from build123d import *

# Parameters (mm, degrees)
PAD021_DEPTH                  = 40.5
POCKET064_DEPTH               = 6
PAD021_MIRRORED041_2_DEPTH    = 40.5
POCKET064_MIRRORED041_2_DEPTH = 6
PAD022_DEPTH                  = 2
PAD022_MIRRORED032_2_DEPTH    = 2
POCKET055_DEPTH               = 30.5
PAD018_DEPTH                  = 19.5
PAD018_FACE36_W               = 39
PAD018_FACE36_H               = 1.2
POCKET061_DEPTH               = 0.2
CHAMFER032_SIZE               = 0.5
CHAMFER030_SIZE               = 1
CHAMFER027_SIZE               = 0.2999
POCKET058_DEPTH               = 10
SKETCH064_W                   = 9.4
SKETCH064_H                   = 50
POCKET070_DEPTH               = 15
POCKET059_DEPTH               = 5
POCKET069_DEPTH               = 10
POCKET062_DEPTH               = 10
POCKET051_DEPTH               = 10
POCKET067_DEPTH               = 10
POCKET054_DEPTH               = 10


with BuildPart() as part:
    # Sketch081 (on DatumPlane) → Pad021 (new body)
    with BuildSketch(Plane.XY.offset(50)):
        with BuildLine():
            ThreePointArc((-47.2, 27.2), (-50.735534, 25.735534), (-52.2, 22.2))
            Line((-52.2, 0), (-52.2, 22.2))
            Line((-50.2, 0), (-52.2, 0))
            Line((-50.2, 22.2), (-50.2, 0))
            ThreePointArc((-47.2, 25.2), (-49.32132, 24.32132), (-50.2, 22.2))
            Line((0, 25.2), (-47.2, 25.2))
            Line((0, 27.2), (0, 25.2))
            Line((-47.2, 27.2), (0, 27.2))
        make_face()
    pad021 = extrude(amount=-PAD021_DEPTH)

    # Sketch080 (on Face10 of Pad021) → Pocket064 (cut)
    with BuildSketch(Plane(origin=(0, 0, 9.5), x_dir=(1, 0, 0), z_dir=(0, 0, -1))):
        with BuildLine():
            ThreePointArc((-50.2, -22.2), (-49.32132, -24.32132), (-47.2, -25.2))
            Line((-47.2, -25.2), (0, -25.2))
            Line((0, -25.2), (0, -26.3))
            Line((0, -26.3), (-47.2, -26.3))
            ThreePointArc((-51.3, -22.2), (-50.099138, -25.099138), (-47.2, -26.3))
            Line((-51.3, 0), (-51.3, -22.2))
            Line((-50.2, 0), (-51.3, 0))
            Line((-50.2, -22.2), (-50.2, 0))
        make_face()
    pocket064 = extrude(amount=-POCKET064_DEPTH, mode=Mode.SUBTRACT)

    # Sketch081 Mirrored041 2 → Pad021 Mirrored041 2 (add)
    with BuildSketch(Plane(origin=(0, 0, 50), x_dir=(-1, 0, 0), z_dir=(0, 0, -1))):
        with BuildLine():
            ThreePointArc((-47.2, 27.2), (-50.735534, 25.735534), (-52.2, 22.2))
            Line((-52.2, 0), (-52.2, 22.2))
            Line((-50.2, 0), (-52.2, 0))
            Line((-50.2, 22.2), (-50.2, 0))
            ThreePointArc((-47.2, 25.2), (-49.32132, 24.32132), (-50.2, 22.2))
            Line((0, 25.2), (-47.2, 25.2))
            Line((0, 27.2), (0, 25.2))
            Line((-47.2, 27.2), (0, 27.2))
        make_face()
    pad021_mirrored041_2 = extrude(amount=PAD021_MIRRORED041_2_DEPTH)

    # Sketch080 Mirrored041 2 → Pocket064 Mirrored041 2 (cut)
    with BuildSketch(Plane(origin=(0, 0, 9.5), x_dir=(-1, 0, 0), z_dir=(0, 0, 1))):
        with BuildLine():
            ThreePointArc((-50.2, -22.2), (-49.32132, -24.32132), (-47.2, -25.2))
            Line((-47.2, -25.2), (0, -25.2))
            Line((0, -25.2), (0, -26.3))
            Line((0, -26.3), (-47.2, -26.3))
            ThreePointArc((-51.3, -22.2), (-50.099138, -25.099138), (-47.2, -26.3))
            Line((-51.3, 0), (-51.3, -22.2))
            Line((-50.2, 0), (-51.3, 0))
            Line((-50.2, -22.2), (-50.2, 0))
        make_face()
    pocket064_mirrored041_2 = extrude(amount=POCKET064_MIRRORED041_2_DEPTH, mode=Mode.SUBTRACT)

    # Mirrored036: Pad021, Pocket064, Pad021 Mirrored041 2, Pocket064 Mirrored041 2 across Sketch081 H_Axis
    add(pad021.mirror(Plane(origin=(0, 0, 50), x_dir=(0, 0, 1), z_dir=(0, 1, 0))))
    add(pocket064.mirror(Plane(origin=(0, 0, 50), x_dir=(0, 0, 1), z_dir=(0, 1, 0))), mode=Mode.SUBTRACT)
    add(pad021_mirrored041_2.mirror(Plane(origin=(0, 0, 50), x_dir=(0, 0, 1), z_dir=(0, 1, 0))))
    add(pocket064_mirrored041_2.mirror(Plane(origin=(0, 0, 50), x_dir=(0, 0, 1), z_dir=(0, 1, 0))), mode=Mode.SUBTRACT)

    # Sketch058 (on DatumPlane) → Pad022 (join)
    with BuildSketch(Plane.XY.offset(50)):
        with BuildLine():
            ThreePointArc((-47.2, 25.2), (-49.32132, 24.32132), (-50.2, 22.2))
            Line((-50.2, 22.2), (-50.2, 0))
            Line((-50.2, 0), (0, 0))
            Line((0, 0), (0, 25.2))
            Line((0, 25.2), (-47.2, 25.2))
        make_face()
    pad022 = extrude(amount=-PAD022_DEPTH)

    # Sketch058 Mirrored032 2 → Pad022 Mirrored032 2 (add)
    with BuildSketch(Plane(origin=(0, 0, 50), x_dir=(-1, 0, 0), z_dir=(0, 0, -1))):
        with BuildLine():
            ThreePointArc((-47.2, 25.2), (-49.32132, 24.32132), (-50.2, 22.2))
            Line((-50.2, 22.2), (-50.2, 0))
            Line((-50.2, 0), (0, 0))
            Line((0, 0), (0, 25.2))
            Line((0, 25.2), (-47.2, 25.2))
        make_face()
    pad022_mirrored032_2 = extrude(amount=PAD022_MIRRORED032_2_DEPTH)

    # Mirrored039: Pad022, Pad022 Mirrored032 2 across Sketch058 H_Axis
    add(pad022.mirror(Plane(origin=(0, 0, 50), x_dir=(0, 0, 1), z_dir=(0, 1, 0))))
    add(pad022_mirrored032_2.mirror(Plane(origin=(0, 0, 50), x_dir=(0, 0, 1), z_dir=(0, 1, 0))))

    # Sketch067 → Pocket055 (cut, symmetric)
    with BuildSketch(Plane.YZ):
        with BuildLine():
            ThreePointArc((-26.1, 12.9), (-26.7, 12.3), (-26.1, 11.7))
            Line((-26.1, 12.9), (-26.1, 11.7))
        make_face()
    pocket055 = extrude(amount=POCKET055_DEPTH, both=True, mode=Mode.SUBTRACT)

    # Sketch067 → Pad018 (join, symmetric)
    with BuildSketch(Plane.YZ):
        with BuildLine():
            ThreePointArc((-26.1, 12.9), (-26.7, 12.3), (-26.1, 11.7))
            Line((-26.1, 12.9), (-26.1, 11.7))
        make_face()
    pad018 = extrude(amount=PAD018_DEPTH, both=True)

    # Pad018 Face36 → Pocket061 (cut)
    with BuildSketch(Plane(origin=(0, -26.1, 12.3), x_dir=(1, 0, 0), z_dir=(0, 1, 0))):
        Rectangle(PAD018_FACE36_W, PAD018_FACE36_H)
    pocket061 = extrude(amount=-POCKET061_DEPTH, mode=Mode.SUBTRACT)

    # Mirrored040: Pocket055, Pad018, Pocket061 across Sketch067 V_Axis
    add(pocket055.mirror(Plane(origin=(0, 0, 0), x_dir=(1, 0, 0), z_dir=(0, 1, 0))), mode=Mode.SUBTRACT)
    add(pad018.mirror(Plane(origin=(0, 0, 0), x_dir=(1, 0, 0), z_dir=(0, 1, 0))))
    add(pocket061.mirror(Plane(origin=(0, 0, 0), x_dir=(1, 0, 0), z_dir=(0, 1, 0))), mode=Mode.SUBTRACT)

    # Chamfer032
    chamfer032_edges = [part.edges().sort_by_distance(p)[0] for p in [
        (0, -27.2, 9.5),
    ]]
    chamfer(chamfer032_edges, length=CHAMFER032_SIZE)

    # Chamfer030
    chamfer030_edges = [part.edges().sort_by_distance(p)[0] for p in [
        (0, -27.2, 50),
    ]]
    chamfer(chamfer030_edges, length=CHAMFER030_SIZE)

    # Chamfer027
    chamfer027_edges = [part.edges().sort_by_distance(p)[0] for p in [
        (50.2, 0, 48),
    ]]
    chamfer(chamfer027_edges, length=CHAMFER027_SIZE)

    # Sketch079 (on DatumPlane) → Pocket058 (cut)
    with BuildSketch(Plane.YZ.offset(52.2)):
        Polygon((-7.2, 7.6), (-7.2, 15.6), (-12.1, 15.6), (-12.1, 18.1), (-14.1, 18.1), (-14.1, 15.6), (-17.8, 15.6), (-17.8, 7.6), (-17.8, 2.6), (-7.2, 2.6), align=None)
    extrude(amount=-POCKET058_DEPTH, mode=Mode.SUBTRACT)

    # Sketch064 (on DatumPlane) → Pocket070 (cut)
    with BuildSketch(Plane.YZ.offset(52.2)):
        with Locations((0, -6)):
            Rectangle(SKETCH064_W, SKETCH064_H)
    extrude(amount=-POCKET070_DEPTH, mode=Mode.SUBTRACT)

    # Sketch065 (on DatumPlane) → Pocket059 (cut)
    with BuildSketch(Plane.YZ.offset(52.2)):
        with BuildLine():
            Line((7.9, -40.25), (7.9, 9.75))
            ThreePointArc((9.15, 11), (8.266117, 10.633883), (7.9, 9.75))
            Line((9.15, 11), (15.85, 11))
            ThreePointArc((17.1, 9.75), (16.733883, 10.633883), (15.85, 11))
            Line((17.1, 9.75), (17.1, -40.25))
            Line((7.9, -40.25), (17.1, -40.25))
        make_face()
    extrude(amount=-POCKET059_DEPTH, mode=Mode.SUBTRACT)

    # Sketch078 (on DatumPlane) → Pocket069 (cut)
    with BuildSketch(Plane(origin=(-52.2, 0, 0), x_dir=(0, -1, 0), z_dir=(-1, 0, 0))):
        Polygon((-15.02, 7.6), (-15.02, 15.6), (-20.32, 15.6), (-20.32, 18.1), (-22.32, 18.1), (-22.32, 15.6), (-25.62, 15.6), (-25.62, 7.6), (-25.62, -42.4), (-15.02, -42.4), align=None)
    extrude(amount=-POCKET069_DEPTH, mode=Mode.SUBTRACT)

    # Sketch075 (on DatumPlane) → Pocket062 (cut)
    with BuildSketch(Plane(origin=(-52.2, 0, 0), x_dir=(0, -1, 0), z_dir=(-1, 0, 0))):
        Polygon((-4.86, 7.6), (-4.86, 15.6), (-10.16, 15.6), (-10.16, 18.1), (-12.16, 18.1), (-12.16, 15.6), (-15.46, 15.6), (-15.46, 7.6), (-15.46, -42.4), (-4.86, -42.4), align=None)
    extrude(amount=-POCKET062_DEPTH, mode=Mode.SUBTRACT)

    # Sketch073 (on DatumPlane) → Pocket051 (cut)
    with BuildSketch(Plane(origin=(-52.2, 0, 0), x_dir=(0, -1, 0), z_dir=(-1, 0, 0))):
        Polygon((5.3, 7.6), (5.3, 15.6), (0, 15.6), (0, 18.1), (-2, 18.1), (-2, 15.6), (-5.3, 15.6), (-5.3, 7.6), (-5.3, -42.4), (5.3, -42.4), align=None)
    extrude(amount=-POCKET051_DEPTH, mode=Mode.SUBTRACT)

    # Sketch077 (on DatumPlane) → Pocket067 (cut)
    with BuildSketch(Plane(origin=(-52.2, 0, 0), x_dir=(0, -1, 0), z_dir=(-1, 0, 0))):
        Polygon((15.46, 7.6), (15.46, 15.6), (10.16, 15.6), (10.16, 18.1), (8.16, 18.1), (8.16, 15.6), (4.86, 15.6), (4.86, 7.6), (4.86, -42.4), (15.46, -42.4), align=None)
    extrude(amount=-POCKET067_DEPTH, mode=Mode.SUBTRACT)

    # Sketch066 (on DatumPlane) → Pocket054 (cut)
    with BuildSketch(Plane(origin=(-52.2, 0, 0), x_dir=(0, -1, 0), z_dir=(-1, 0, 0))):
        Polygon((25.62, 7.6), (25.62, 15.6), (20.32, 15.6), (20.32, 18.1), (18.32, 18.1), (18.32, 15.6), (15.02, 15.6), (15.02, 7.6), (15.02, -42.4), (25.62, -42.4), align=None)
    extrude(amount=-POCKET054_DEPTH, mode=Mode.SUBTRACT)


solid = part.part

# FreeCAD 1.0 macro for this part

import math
import FreeCAD as App
import Part
import Sketcher
from FreeCAD import Vector


def edges_at(feature, points):
    """Names of the edges that pass closest to the given points."""
    edges = feature.Shape.Edges
    near = lambda p: min(range(len(edges)), key=lambda i: edges[i].distToShape(Part.Vertex(*p))[0])
    return sorted({f"Edge{near(p) + 1}" for p in points})


def add_polygon(sketch, points):
    """Adds a closed chain of lines whose ends are joined by coincident constraints."""
    first, n = sketch.GeometryCount, len(points)
    for a, b in zip(points, points[1:] + points[:1]):
        sketch.addGeometry(Part.LineSegment(App.Vector(*a, 0), App.Vector(*b, 0)), False)
    for i in range(n):
        sketch.addConstraint(Sketcher.Constraint("Coincident", first + i, 2, first + (i + 1) % n, 1))

doc = App.newDocument("Part")
body = doc.addObject("PartDesign::Body", "Body")

sketch1 = body.newObject("Sketcher::SketchObject", "Sketch")
sketch1.AttachmentSupport = (doc.getObject("XY_Plane"), [""])
sketch1.MapMode = "FlatFace"
sketch1.AttachmentOffset = App.Placement(Vector(0, 0, 50), App.Rotation())
sketch1.addGeometry(Part.ArcOfCircle(Part.Circle(Vector(-47.2, 22.2, 0), Vector(0, 0, 1), 5), math.radians(90), math.radians(180)), False)
sketch1.addGeometry(Part.LineSegment(Vector(-52.2, 22.2, 0), Vector(-52.2, 0, 0)), False)
sketch1.addGeometry(Part.LineSegment(Vector(-52.2, 0, 0), Vector(-50.2, 0, 0)), False)
sketch1.addGeometry(Part.LineSegment(Vector(-50.2, 0, 0), Vector(-50.2, 22.2, 0)), False)
sketch1.addGeometry(Part.ArcOfCircle(Part.Circle(Vector(-47.2, 22.2, 0), Vector(0, 0, 1), 3), math.radians(90), math.radians(180)), False)
sketch1.addGeometry(Part.LineSegment(Vector(-47.2, 25.2, 0), Vector(0, 25.2, 0)), False)
sketch1.addGeometry(Part.LineSegment(Vector(0, 25.2, 0), Vector(0, 27.2, 0)), False)
sketch1.addGeometry(Part.LineSegment(Vector(0, 27.2, 0), Vector(-47.2, 27.2, 0)), False)
sketch1.addConstraint(Sketcher.Constraint("Tangent", 0, 2, 1, 1))
sketch1.addConstraint(Sketcher.Constraint("Coincident", 1, 2, 2, 1))
sketch1.addConstraint(Sketcher.Constraint("Coincident", 2, 2, 3, 1))
sketch1.addConstraint(Sketcher.Constraint("Tangent", 3, 2, 4, 2))
sketch1.addConstraint(Sketcher.Constraint("Tangent", 4, 1, 5, 1))
sketch1.addConstraint(Sketcher.Constraint("Coincident", 5, 2, 6, 1))
sketch1.addConstraint(Sketcher.Constraint("Coincident", 6, 2, 7, 1))
sketch1.addConstraint(Sketcher.Constraint("Tangent", 7, 2, 0, 1))
sketch1.addConstraint(Sketcher.Constraint("Vertical", 1))
sketch1.addConstraint(Sketcher.Constraint("Horizontal", 2))
sketch1.addConstraint(Sketcher.Constraint("Vertical", 3))
sketch1.addConstraint(Sketcher.Constraint("Horizontal", 5))
sketch1.addConstraint(Sketcher.Constraint("Vertical", 6))
sketch1.addConstraint(Sketcher.Constraint("Horizontal", 7))
sketch1.addConstraint(Sketcher.Constraint("Coincident", 4, 3, 0, 3))
sketch1.addConstraint(Sketcher.Constraint("PointOnObject", 1, 2, -1))
sketch1.addConstraint(Sketcher.Constraint("PointOnObject", 5, 2, -2))
sketch1.addConstraint(Sketcher.Constraint("Radius", 0, 5.0))
sketch1.addConstraint(Sketcher.Constraint("Radius", 4, 3.000001))
sketch1.addConstraint(Sketcher.Constraint("DistanceX", 5, 1, 5, 2, 47.2))
sketch1.addConstraint(Sketcher.Constraint("DistanceY", 1, 2, 1, 1, 22.2))
pad1 = body.newObject("PartDesign::Pad", "Pad")
pad1.Profile = sketch1
pad1.Length = 40.5
pad1.Reversed = True

sketch2 = body.newObject("Sketcher::SketchObject", "Sketch001")
sketch2.AttachmentSupport = (doc.getObject("XY_Plane"), [""])
sketch2.MapMode = "FlatFace"
sketch2.AttachmentOffset = App.Placement(Vector(0, 0, 9.5), App.Rotation())
sketch2.addGeometry(Part.ArcOfCircle(Part.Circle(Vector(-47.2, 22.2, 0), Vector(0, 0, 1), 3), math.radians(90), math.radians(180)), False)
sketch2.addGeometry(Part.LineSegment(Vector(-50.2, 22.2, 0), Vector(-50.2, 0, 0)), False)
sketch2.addGeometry(Part.LineSegment(Vector(-50.2, 0, 0), Vector(-51.3, 0, 0)), False)
sketch2.addGeometry(Part.LineSegment(Vector(-51.3, 0, 0), Vector(-51.3, 22.2, 0)), False)
sketch2.addGeometry(Part.ArcOfCircle(Part.Circle(Vector(-47.2, 22.2, 0), Vector(0, 0, 1), 4.1), math.radians(90), math.radians(180)), False)
sketch2.addGeometry(Part.LineSegment(Vector(-47.2, 26.3, 0), Vector(0, 26.3, 0)), False)
sketch2.addGeometry(Part.LineSegment(Vector(0, 26.3, 0), Vector(0, 25.2, 0)), False)
sketch2.addGeometry(Part.LineSegment(Vector(0, 25.2, 0), Vector(-47.2, 25.2, 0)), False)
sketch2.addConstraint(Sketcher.Constraint("Tangent", 0, 2, 1, 1))
sketch2.addConstraint(Sketcher.Constraint("Coincident", 1, 2, 2, 1))
sketch2.addConstraint(Sketcher.Constraint("Coincident", 2, 2, 3, 1))
sketch2.addConstraint(Sketcher.Constraint("Tangent", 3, 2, 4, 2))
sketch2.addConstraint(Sketcher.Constraint("Tangent", 4, 1, 5, 1))
sketch2.addConstraint(Sketcher.Constraint("Coincident", 5, 2, 6, 1))
sketch2.addConstraint(Sketcher.Constraint("Coincident", 6, 2, 7, 1))
sketch2.addConstraint(Sketcher.Constraint("Tangent", 7, 2, 0, 1))
sketch2.addConstraint(Sketcher.Constraint("Vertical", 1))
sketch2.addConstraint(Sketcher.Constraint("Horizontal", 2))
sketch2.addConstraint(Sketcher.Constraint("Vertical", 3))
sketch2.addConstraint(Sketcher.Constraint("Horizontal", 5))
sketch2.addConstraint(Sketcher.Constraint("Vertical", 6))
sketch2.addConstraint(Sketcher.Constraint("Horizontal", 7))
sketch2.addConstraint(Sketcher.Constraint("Coincident", 4, 3, 0, 3))
sketch2.addConstraint(Sketcher.Constraint("PointOnObject", 1, 2, -1))
sketch2.addConstraint(Sketcher.Constraint("PointOnObject", 5, 2, -2))
sketch2.addConstraint(Sketcher.Constraint("Radius", 0, 3.000001))
sketch2.addConstraint(Sketcher.Constraint("Radius", 4, 4.099999))
sketch2.addConstraint(Sketcher.Constraint("DistanceX", 5, 1, 5, 2, 47.2))
sketch2.addConstraint(Sketcher.Constraint("DistanceY", 1, 2, 1, 1, 22.2))
pocket1 = body.newObject("PartDesign::Pocket", "Pocket")
pocket1.Profile = sketch2
pocket1.Length = 6
pocket1.Reversed = True

sketch3 = body.newObject("Sketcher::SketchObject", "Sketch002")
sketch3.AttachmentSupport = (doc.getObject("XY_Plane"), [""])
sketch3.MapMode = "FlatFace"
sketch3.AttachmentOffset = App.Placement(Vector(0, 0, 50), App.Rotation())
sketch3.addGeometry(Part.ArcOfCircle(Part.Circle(Vector(47.2, 22.2, 0), Vector(0, 0, 1), 5), math.radians(0), math.radians(90)), False)
sketch3.addGeometry(Part.LineSegment(Vector(52.2, 22.2, 0), Vector(52.2, 0, 0)), False)
sketch3.addGeometry(Part.LineSegment(Vector(52.2, 0, 0), Vector(50.2, 0, 0)), False)
sketch3.addGeometry(Part.LineSegment(Vector(50.2, 0, 0), Vector(50.2, 22.2, 0)), False)
sketch3.addGeometry(Part.ArcOfCircle(Part.Circle(Vector(47.2, 22.2, 0), Vector(0, 0, 1), 3), math.radians(0), math.radians(90)), False)
sketch3.addGeometry(Part.LineSegment(Vector(47.2, 25.2, 0), Vector(0, 25.2, 0)), False)
sketch3.addGeometry(Part.LineSegment(Vector(0, 25.2, 0), Vector(0, 27.2, 0)), False)
sketch3.addGeometry(Part.LineSegment(Vector(0, 27.2, 0), Vector(47.2, 27.2, 0)), False)
sketch3.addConstraint(Sketcher.Constraint("Tangent", 0, 1, 1, 1))
sketch3.addConstraint(Sketcher.Constraint("Coincident", 1, 2, 2, 1))
sketch3.addConstraint(Sketcher.Constraint("Coincident", 2, 2, 3, 1))
sketch3.addConstraint(Sketcher.Constraint("Tangent", 3, 2, 4, 1))
sketch3.addConstraint(Sketcher.Constraint("Tangent", 4, 2, 5, 1))
sketch3.addConstraint(Sketcher.Constraint("Coincident", 5, 2, 6, 1))
sketch3.addConstraint(Sketcher.Constraint("Coincident", 6, 2, 7, 1))
sketch3.addConstraint(Sketcher.Constraint("Tangent", 7, 2, 0, 2))
sketch3.addConstraint(Sketcher.Constraint("Vertical", 1))
sketch3.addConstraint(Sketcher.Constraint("Horizontal", 2))
sketch3.addConstraint(Sketcher.Constraint("Vertical", 3))
sketch3.addConstraint(Sketcher.Constraint("Horizontal", 5))
sketch3.addConstraint(Sketcher.Constraint("Vertical", 6))
sketch3.addConstraint(Sketcher.Constraint("Horizontal", 7))
sketch3.addConstraint(Sketcher.Constraint("Coincident", 4, 3, 0, 3))
sketch3.addConstraint(Sketcher.Constraint("PointOnObject", 1, 2, -1))
sketch3.addConstraint(Sketcher.Constraint("PointOnObject", 5, 2, -2))
sketch3.addConstraint(Sketcher.Constraint("Radius", 0, 5.0))
sketch3.addConstraint(Sketcher.Constraint("Radius", 4, 3.000001))
sketch3.addConstraint(Sketcher.Constraint("DistanceX", 5, 2, 5, 1, 47.2))
sketch3.addConstraint(Sketcher.Constraint("DistanceY", 1, 2, 1, 1, 22.2))
pad2 = body.newObject("PartDesign::Pad", "Pad001")
pad2.Profile = sketch3
pad2.Length = 40.5
pad2.Reversed = True

sketch4 = body.newObject("Sketcher::SketchObject", "Sketch003")
sketch4.AttachmentSupport = (doc.getObject("XY_Plane"), [""])
sketch4.MapMode = "FlatFace"
sketch4.AttachmentOffset = App.Placement(Vector(0, 0, 9.5), App.Rotation())
sketch4.addGeometry(Part.ArcOfCircle(Part.Circle(Vector(47.2, 22.2, 0), Vector(0, 0, 1), 3), math.radians(0), math.radians(90)), False)
sketch4.addGeometry(Part.LineSegment(Vector(50.2, 22.2, 0), Vector(50.2, 0, 0)), False)
sketch4.addGeometry(Part.LineSegment(Vector(50.2, 0, 0), Vector(51.3, 0, 0)), False)
sketch4.addGeometry(Part.LineSegment(Vector(51.3, 0, 0), Vector(51.3, 22.2, 0)), False)
sketch4.addGeometry(Part.ArcOfCircle(Part.Circle(Vector(47.2, 22.2, 0), Vector(0, 0, 1), 4.1), math.radians(0), math.radians(90)), False)
sketch4.addGeometry(Part.LineSegment(Vector(47.2, 26.3, 0), Vector(0, 26.3, 0)), False)
sketch4.addGeometry(Part.LineSegment(Vector(0, 26.3, 0), Vector(0, 25.2, 0)), False)
sketch4.addGeometry(Part.LineSegment(Vector(0, 25.2, 0), Vector(47.2, 25.2, 0)), False)
sketch4.addConstraint(Sketcher.Constraint("Tangent", 0, 1, 1, 1))
sketch4.addConstraint(Sketcher.Constraint("Coincident", 1, 2, 2, 1))
sketch4.addConstraint(Sketcher.Constraint("Coincident", 2, 2, 3, 1))
sketch4.addConstraint(Sketcher.Constraint("Tangent", 3, 2, 4, 1))
sketch4.addConstraint(Sketcher.Constraint("Tangent", 4, 2, 5, 1))
sketch4.addConstraint(Sketcher.Constraint("Coincident", 5, 2, 6, 1))
sketch4.addConstraint(Sketcher.Constraint("Coincident", 6, 2, 7, 1))
sketch4.addConstraint(Sketcher.Constraint("Tangent", 7, 2, 0, 2))
sketch4.addConstraint(Sketcher.Constraint("Vertical", 1))
sketch4.addConstraint(Sketcher.Constraint("Horizontal", 2))
sketch4.addConstraint(Sketcher.Constraint("Vertical", 3))
sketch4.addConstraint(Sketcher.Constraint("Horizontal", 5))
sketch4.addConstraint(Sketcher.Constraint("Vertical", 6))
sketch4.addConstraint(Sketcher.Constraint("Horizontal", 7))
sketch4.addConstraint(Sketcher.Constraint("Coincident", 4, 3, 0, 3))
sketch4.addConstraint(Sketcher.Constraint("PointOnObject", 1, 2, -1))
sketch4.addConstraint(Sketcher.Constraint("PointOnObject", 5, 2, -2))
sketch4.addConstraint(Sketcher.Constraint("Radius", 0, 3.000001))
sketch4.addConstraint(Sketcher.Constraint("Radius", 4, 4.099999))
sketch4.addConstraint(Sketcher.Constraint("DistanceX", 5, 2, 5, 1, 47.2))
sketch4.addConstraint(Sketcher.Constraint("DistanceY", 1, 2, 1, 1, 22.2))
pocket2 = body.newObject("PartDesign::Pocket", "Pocket001")
pocket2.Profile = sketch4
pocket2.Length = 6
pocket2.Reversed = True
doc.recompute()

mirrored = body.newObject("PartDesign::Mirrored", "Mirrored")
mirrored.Originals = [pad1, pocket1, pad2, pocket2]
mirrored.MirrorPlane = (doc.getObject("XZ_Plane"), [""])
body.Tip = mirrored

sketch5 = body.newObject("Sketcher::SketchObject", "Sketch004")
sketch5.AttachmentSupport = (doc.getObject("XY_Plane"), [""])
sketch5.MapMode = "FlatFace"
sketch5.AttachmentOffset = App.Placement(Vector(0, 0, 50), App.Rotation())
sketch5.addGeometry(Part.ArcOfCircle(Part.Circle(Vector(-47.2, 22.2, 0), Vector(0, 0, 1), 3), math.radians(90), math.radians(180)), False)
sketch5.addGeometry(Part.LineSegment(Vector(-50.2, 22.2, 0), Vector(-50.2, 0, 0)), False)
sketch5.addGeometry(Part.LineSegment(Vector(-50.2, 0, 0), Vector(0, 0, 0)), False)
sketch5.addGeometry(Part.LineSegment(Vector(0, 0, 0), Vector(0, 25.2, 0)), False)
sketch5.addGeometry(Part.LineSegment(Vector(0, 25.2, 0), Vector(-47.2, 25.2, 0)), False)
sketch5.addConstraint(Sketcher.Constraint("Tangent", 0, 2, 1, 1))
sketch5.addConstraint(Sketcher.Constraint("Coincident", 1, 2, 2, 1))
sketch5.addConstraint(Sketcher.Constraint("Coincident", 2, 2, 3, 1))
sketch5.addConstraint(Sketcher.Constraint("Coincident", 3, 2, 4, 1))
sketch5.addConstraint(Sketcher.Constraint("Tangent", 4, 2, 0, 1))
sketch5.addConstraint(Sketcher.Constraint("Vertical", 1))
sketch5.addConstraint(Sketcher.Constraint("Horizontal", 2))
sketch5.addConstraint(Sketcher.Constraint("Vertical", 3))
sketch5.addConstraint(Sketcher.Constraint("Horizontal", 4))
sketch5.addConstraint(Sketcher.Constraint("Coincident", 2, 2, -1, 1))
sketch5.addConstraint(Sketcher.Constraint("Radius", 0, 3.000001))
sketch5.addConstraint(Sketcher.Constraint("DistanceX", 2, 1, 2, 2, 50.2))
sketch5.addConstraint(Sketcher.Constraint("DistanceY", 1, 2, 1, 1, 22.2))
pad3 = body.newObject("PartDesign::Pad", "Pad002")
pad3.Profile = sketch5
pad3.Length = 2
pad3.Reversed = True

sketch6 = body.newObject("Sketcher::SketchObject", "Sketch005")
sketch6.AttachmentSupport = (doc.getObject("XY_Plane"), [""])
sketch6.MapMode = "FlatFace"
sketch6.AttachmentOffset = App.Placement(Vector(0, 0, 50), App.Rotation())
sketch6.addGeometry(Part.ArcOfCircle(Part.Circle(Vector(47.2, 22.2, 0), Vector(0, 0, 1), 3), math.radians(0), math.radians(90)), False)
sketch6.addGeometry(Part.LineSegment(Vector(50.2, 22.2, 0), Vector(50.2, 0, 0)), False)
sketch6.addGeometry(Part.LineSegment(Vector(50.2, 0, 0), Vector(0, 0, 0)), False)
sketch6.addGeometry(Part.LineSegment(Vector(0, 0, 0), Vector(0, 25.2, 0)), False)
sketch6.addGeometry(Part.LineSegment(Vector(0, 25.2, 0), Vector(47.2, 25.2, 0)), False)
sketch6.addConstraint(Sketcher.Constraint("Tangent", 0, 1, 1, 1))
sketch6.addConstraint(Sketcher.Constraint("Coincident", 1, 2, 2, 1))
sketch6.addConstraint(Sketcher.Constraint("Coincident", 2, 2, 3, 1))
sketch6.addConstraint(Sketcher.Constraint("Coincident", 3, 2, 4, 1))
sketch6.addConstraint(Sketcher.Constraint("Tangent", 4, 2, 0, 2))
sketch6.addConstraint(Sketcher.Constraint("Vertical", 1))
sketch6.addConstraint(Sketcher.Constraint("Horizontal", 2))
sketch6.addConstraint(Sketcher.Constraint("Vertical", 3))
sketch6.addConstraint(Sketcher.Constraint("Horizontal", 4))
sketch6.addConstraint(Sketcher.Constraint("Coincident", 2, 2, -1, 1))
sketch6.addConstraint(Sketcher.Constraint("Radius", 0, 3.000001))
sketch6.addConstraint(Sketcher.Constraint("DistanceX", 2, 2, 2, 1, 50.2))
sketch6.addConstraint(Sketcher.Constraint("DistanceY", 1, 2, 1, 1, 22.2))
pad4 = body.newObject("PartDesign::Pad", "Pad003")
pad4.Profile = sketch6
pad4.Length = 2
pad4.Reversed = True
doc.recompute()

mirrored2 = body.newObject("PartDesign::Mirrored", "Mirrored001")
mirrored2.Originals = [pad3, pad4]
mirrored2.MirrorPlane = (doc.getObject("XZ_Plane"), [""])
body.Tip = mirrored2

sketch7 = body.newObject("Sketcher::SketchObject", "Sketch006")
sketch7.AttachmentSupport = (doc.getObject("YZ_Plane"), [""])
sketch7.MapMode = "FlatFace"
sketch7.addGeometry(Part.ArcOfCircle(Part.Circle(Vector(-26.1, 12.3, 0), Vector(0, 0, 1), 0.6), math.radians(90), math.radians(270)), False)
sketch7.addGeometry(Part.LineSegment(Vector(-26.1, 11.7, 0), Vector(-26.1, 12.9, 0)), False)
sketch7.addConstraint(Sketcher.Constraint("Coincident", 0, 1, 1, 2))
sketch7.addConstraint(Sketcher.Constraint("Coincident", 1, 1, 0, 2))
sketch7.addConstraint(Sketcher.Constraint("Vertical", 1))
sketch7.addConstraint(Sketcher.Constraint("Radius", 0, 0.6))
sketch7.addConstraint(Sketcher.Constraint("DistanceX", 0, 3, -1, 1, 26.1))
sketch7.addConstraint(Sketcher.Constraint("DistanceY", -1, 1, 0, 3, 12.3))
sketch7.addConstraint(Sketcher.Constraint("DistanceX", 0, 1, -1, 1, 26.1))
pocket3 = body.newObject("PartDesign::Pocket", "Pocket002")
pocket3.Profile = sketch7
pocket3.Length = 61
pocket3.Midplane = True

sketch8 = body.newObject("Sketcher::SketchObject", "Sketch007")
sketch8.AttachmentSupport = (doc.getObject("YZ_Plane"), [""])
sketch8.MapMode = "FlatFace"
sketch8.addGeometry(Part.ArcOfCircle(Part.Circle(Vector(-26.1, 12.3, 0), Vector(0, 0, 1), 0.6), math.radians(90), math.radians(270)), False)
sketch8.addGeometry(Part.LineSegment(Vector(-26.1, 11.7, 0), Vector(-26.1, 12.9, 0)), False)
sketch8.addConstraint(Sketcher.Constraint("Coincident", 0, 1, 1, 2))
sketch8.addConstraint(Sketcher.Constraint("Coincident", 1, 1, 0, 2))
sketch8.addConstraint(Sketcher.Constraint("Vertical", 1))
sketch8.addConstraint(Sketcher.Constraint("Radius", 0, 0.6))
sketch8.addConstraint(Sketcher.Constraint("DistanceX", 0, 3, -1, 1, 26.1))
sketch8.addConstraint(Sketcher.Constraint("DistanceY", -1, 1, 0, 3, 12.3))
sketch8.addConstraint(Sketcher.Constraint("DistanceX", 0, 1, -1, 1, 26.1))
pad5 = body.newObject("PartDesign::Pad", "Pad004")
pad5.Profile = sketch8
pad5.Length = 39
pad5.Midplane = True

sketch9 = body.newObject("Sketcher::SketchObject", "Sketch008")
sketch9.AttachmentSupport = (doc.getObject("XZ_Plane"), [""])
sketch9.MapMode = "FlatFace"
sketch9.AttachmentOffset = App.Placement(Vector(0, 0, 26.1), App.Rotation())
add_polygon(sketch9, [(-19.5, 11.7), (-19.5, 12.9), (19.5, 12.9), (19.5, 11.7)])
sketch9.addConstraint(Sketcher.Constraint("Vertical", 0))
sketch9.addConstraint(Sketcher.Constraint("Horizontal", 1))
sketch9.addConstraint(Sketcher.Constraint("Vertical", 2))
sketch9.addConstraint(Sketcher.Constraint("Horizontal", 3))
sketch9.addConstraint(Sketcher.Constraint("DistanceX", 1, 1, 1, 2, 39.0))
sketch9.addConstraint(Sketcher.Constraint("DistanceY", 0, 1, 0, 2, 1.2))
sketch9.addConstraint(Sketcher.Constraint("DistanceX", 0, 2, -1, 1, 19.5))
sketch9.addConstraint(Sketcher.Constraint("DistanceY", -1, 1, 0, 2, 12.9))
pocket4 = body.newObject("PartDesign::Pocket", "Pocket003")
pocket4.Profile = sketch9
pocket4.Length = 0.2
pocket4.Reversed = True
doc.recompute()

mirrored3 = body.newObject("PartDesign::Mirrored", "Mirrored002")
mirrored3.Originals = [pocket3, pad5, pocket4]
mirrored3.MirrorPlane = (doc.getObject("XZ_Plane"), [""])
body.Tip = mirrored3
doc.recompute()

chamfer = body.newObject("PartDesign::Chamfer", "Chamfer")
chamfer.Base = (mirrored3, edges_at(mirrored3, [(0, -27.2, 9.5)]))
chamfer.Size = 0.5
doc.recompute()

chamfer2 = body.newObject("PartDesign::Chamfer", "Chamfer001")
chamfer2.Base = (chamfer, edges_at(chamfer, [(0, -27.2, 50)]))
chamfer2.Size = 1
doc.recompute()

chamfer3 = body.newObject("PartDesign::Chamfer", "Chamfer002")
chamfer3.Base = (chamfer2, edges_at(chamfer2, [(50.2, 0, 48)]))
chamfer3.Size = 0.2999

sketch10 = body.newObject("Sketcher::SketchObject", "Sketch009")
sketch10.AttachmentSupport = (doc.getObject("YZ_Plane"), [""])
sketch10.MapMode = "FlatFace"
sketch10.AttachmentOffset = App.Placement(Vector(0, 0, 52.2), App.Rotation())
add_polygon(sketch10, [(-7.2, 15.6), (-12.1, 15.6), (-12.1, 18.1), (-14.1, 18.1), (-14.1, 15.6), (-17.8, 15.6), (-17.8, 2.6), (-7.2, 2.6)])
sketch10.addConstraint(Sketcher.Constraint("Horizontal", 0))
sketch10.addConstraint(Sketcher.Constraint("Vertical", 1))
sketch10.addConstraint(Sketcher.Constraint("Horizontal", 2))
sketch10.addConstraint(Sketcher.Constraint("Vertical", 3))
sketch10.addConstraint(Sketcher.Constraint("Horizontal", 4))
sketch10.addConstraint(Sketcher.Constraint("Vertical", 5))
sketch10.addConstraint(Sketcher.Constraint("Horizontal", 6))
sketch10.addConstraint(Sketcher.Constraint("Vertical", 7))
sketch10.addConstraint(Sketcher.Constraint("Horizontal", 0, 2, 3, 2))
sketch10.addConstraint(Sketcher.Constraint("DistanceX", 2, 2, 2, 1, 2.0))
sketch10.addConstraint(Sketcher.Constraint("DistanceY", 5, 2, 5, 1, 13.0))
sketch10.addConstraint(Sketcher.Constraint("DistanceX", 0, 2, 0, 1, 4.9))
sketch10.addConstraint(Sketcher.Constraint("DistanceX", 4, 2, 4, 1, 3.7))
sketch10.addConstraint(Sketcher.Constraint("DistanceY", 1, 1, 1, 2, 2.5))
sketch10.addConstraint(Sketcher.Constraint("DistanceX", 0, 2, -1, 1, 12.1))
sketch10.addConstraint(Sketcher.Constraint("DistanceY", -1, 1, 0, 2, 15.6))
pocket5 = body.newObject("PartDesign::Pocket", "Pocket004")
pocket5.Profile = sketch10
pocket5.Length = 10

sketch11 = body.newObject("Sketcher::SketchObject", "Sketch010")
sketch11.AttachmentSupport = (doc.getObject("YZ_Plane"), [""])
sketch11.MapMode = "FlatFace"
sketch11.AttachmentOffset = App.Placement(Vector(0, 0, 52.2), App.Rotation())
add_polygon(sketch11, [(-5, 19), (-5, -31), (5, -31), (5, 19)])
sketch11.addConstraint(Sketcher.Constraint("Vertical", 0))
sketch11.addConstraint(Sketcher.Constraint("Horizontal", 1))
sketch11.addConstraint(Sketcher.Constraint("Vertical", 2))
sketch11.addConstraint(Sketcher.Constraint("Horizontal", 3))
sketch11.addConstraint(Sketcher.Constraint("DistanceY", 0, 2, 0, 1, 50.0))
sketch11.addConstraint(Sketcher.Constraint("DistanceX", 1, 1, 1, 2, 9.4))
sketch11.addConstraint(Sketcher.Constraint("DistanceY", 0, 2, -1, 1, 31.0))
sketch11.addConstraint(Sketcher.Constraint("DistanceX", 0, 2, -1, 1, 4.7))
pocket6 = body.newObject("PartDesign::Pocket", "Pocket005")
pocket6.Profile = sketch11
pocket6.Length = 15

sketch12 = body.newObject("Sketcher::SketchObject", "Sketch011")
sketch12.AttachmentSupport = (doc.getObject("YZ_Plane"), [""])
sketch12.MapMode = "FlatFace"
sketch12.AttachmentOffset = App.Placement(Vector(0, 0, 52.2), App.Rotation())
sketch12.addGeometry(Part.LineSegment(Vector(7.9, 9.8, 0), Vector(7.9, -40.2, 0)), False)
sketch12.addGeometry(Part.LineSegment(Vector(7.9, -40.2, 0), Vector(17.1, -40.2, 0)), False)
sketch12.addGeometry(Part.LineSegment(Vector(17.1, -40.2, 0), Vector(17.1, 9.8, 0)), False)
sketch12.addGeometry(Part.ArcOfCircle(Part.Circle(Vector(15.8, 9.7, 0), Vector(0, 0, 1), 1.3), math.radians(0), math.radians(90)), False)
sketch12.addGeometry(Part.LineSegment(Vector(15.8, 11, 0), Vector(9.2, 11, 0)), False)
sketch12.addGeometry(Part.ArcOfCircle(Part.Circle(Vector(9.2, 9.7, 0), Vector(0, 0, 1), 1.3), math.radians(90), math.radians(180)), False)
sketch12.addConstraint(Sketcher.Constraint("Coincident", 0, 2, 1, 1))
sketch12.addConstraint(Sketcher.Constraint("Coincident", 1, 2, 2, 1))
sketch12.addConstraint(Sketcher.Constraint("Tangent", 2, 2, 3, 1))
sketch12.addConstraint(Sketcher.Constraint("Tangent", 3, 2, 4, 1))
sketch12.addConstraint(Sketcher.Constraint("Tangent", 4, 2, 5, 1))
sketch12.addConstraint(Sketcher.Constraint("Tangent", 5, 2, 0, 1))
sketch12.addConstraint(Sketcher.Constraint("Vertical", 0))
sketch12.addConstraint(Sketcher.Constraint("Horizontal", 1))
sketch12.addConstraint(Sketcher.Constraint("Vertical", 2))
sketch12.addConstraint(Sketcher.Constraint("Horizontal", 4))
sketch12.addConstraint(Sketcher.Constraint("Equal", 3, 5))
sketch12.addConstraint(Sketcher.Constraint("DistanceY", 0, 2, 0, 1, 50.0))
sketch12.addConstraint(Sketcher.Constraint("Radius", 3, 1.250002))
sketch12.addConstraint(Sketcher.Constraint("DistanceX", 1, 1, 1, 2, 9.2))
sketch12.addConstraint(Sketcher.Constraint("DistanceY", -1, 1, 3, 2, 11.0))
sketch12.addConstraint(Sketcher.Constraint("DistanceX", -1, 1, 0, 2, 7.9))
pocket7 = body.newObject("PartDesign::Pocket", "Pocket006")
pocket7.Profile = sketch12
pocket7.Length = 5

sketch13 = body.newObject("Sketcher::SketchObject", "Sketch012")
sketch13.AttachmentSupport = (doc.getObject("YZ_Plane"), [""])
sketch13.MapMode = "FlatFace"
sketch13.AttachmentOffset = App.Placement(Vector(0, 0, -52.2), App.Rotation())
add_polygon(sketch13, [(15, 15.6), (20.3, 15.6), (20.3, 18.1), (22.3, 18.1), (22.3, 15.6), (25.6, 15.6), (25.6, -42.4), (15, -42.4)])
sketch13.addConstraint(Sketcher.Constraint("Horizontal", 0))
sketch13.addConstraint(Sketcher.Constraint("Vertical", 1))
sketch13.addConstraint(Sketcher.Constraint("Horizontal", 2))
sketch13.addConstraint(Sketcher.Constraint("Vertical", 3))
sketch13.addConstraint(Sketcher.Constraint("Horizontal", 4))
sketch13.addConstraint(Sketcher.Constraint("Vertical", 5))
sketch13.addConstraint(Sketcher.Constraint("Horizontal", 6))
sketch13.addConstraint(Sketcher.Constraint("Vertical", 7))
sketch13.addConstraint(Sketcher.Constraint("Horizontal", 0, 2, 3, 2))
sketch13.addConstraint(Sketcher.Constraint("DistanceX", 2, 1, 2, 2, 2.0))
sketch13.addConstraint(Sketcher.Constraint("DistanceY", 5, 2, 5, 1, 58.0))
sketch13.addConstraint(Sketcher.Constraint("DistanceX", 0, 1, 0, 2, 5.3))
sketch13.addConstraint(Sketcher.Constraint("DistanceX", 4, 1, 4, 2, 3.3))
sketch13.addConstraint(Sketcher.Constraint("DistanceY", 1, 1, 1, 2, 2.5))
sketch13.addConstraint(Sketcher.Constraint("DistanceY", -1, 1, 0, 2, 15.6))
sketch13.addConstraint(Sketcher.Constraint("DistanceX", -1, 1, 0, 2, 20.32))
pocket8 = body.newObject("PartDesign::Pocket", "Pocket007")
pocket8.Profile = sketch13
pocket8.Length = 10
pocket8.Reversed = True

sketch14 = body.newObject("Sketcher::SketchObject", "Sketch013")
sketch14.AttachmentSupport = (doc.getObject("YZ_Plane"), [""])
sketch14.MapMode = "FlatFace"
sketch14.AttachmentOffset = App.Placement(Vector(0, 0, -52.2), App.Rotation())
add_polygon(sketch14, [(4.9, 15.6), (10.2, 15.6), (10.2, 18.1), (12.2, 18.1), (12.2, 15.6), (15.5, 15.6), (15.5, -42.4), (4.9, -42.4)])
sketch14.addConstraint(Sketcher.Constraint("Horizontal", 0))
sketch14.addConstraint(Sketcher.Constraint("Vertical", 1))
sketch14.addConstraint(Sketcher.Constraint("Horizontal", 2))
sketch14.addConstraint(Sketcher.Constraint("Vertical", 3))
sketch14.addConstraint(Sketcher.Constraint("Horizontal", 4))
sketch14.addConstraint(Sketcher.Constraint("Vertical", 5))
sketch14.addConstraint(Sketcher.Constraint("Horizontal", 6))
sketch14.addConstraint(Sketcher.Constraint("Vertical", 7))
sketch14.addConstraint(Sketcher.Constraint("Horizontal", 0, 2, 3, 2))
sketch14.addConstraint(Sketcher.Constraint("DistanceX", 2, 1, 2, 2, 2.0))
sketch14.addConstraint(Sketcher.Constraint("DistanceY", 5, 2, 5, 1, 58.0))
sketch14.addConstraint(Sketcher.Constraint("DistanceX", 0, 1, 0, 2, 5.3))
sketch14.addConstraint(Sketcher.Constraint("DistanceX", 4, 1, 4, 2, 3.3))
sketch14.addConstraint(Sketcher.Constraint("DistanceY", 1, 1, 1, 2, 2.5))
sketch14.addConstraint(Sketcher.Constraint("DistanceY", -1, 1, 0, 2, 15.6))
sketch14.addConstraint(Sketcher.Constraint("DistanceX", -1, 1, 0, 2, 10.16))
pocket9 = body.newObject("PartDesign::Pocket", "Pocket008")
pocket9.Profile = sketch14
pocket9.Length = 10
pocket9.Reversed = True

sketch15 = body.newObject("Sketcher::SketchObject", "Sketch014")
sketch15.AttachmentSupport = (doc.getObject("YZ_Plane"), [""])
sketch15.MapMode = "FlatFace"
sketch15.AttachmentOffset = App.Placement(Vector(0, 0, -52.2), App.Rotation())
add_polygon(sketch15, [(-5.3, 15.6), (0, 15.6), (0, 18.1), (2, 18.1), (2, 15.6), (5.3, 15.6), (5.3, -42.4), (-5.3, -42.4)])
sketch15.addConstraint(Sketcher.Constraint("Horizontal", 0))
sketch15.addConstraint(Sketcher.Constraint("Vertical", 1))
sketch15.addConstraint(Sketcher.Constraint("Horizontal", 2))
sketch15.addConstraint(Sketcher.Constraint("Vertical", 3))
sketch15.addConstraint(Sketcher.Constraint("Horizontal", 4))
sketch15.addConstraint(Sketcher.Constraint("Vertical", 5))
sketch15.addConstraint(Sketcher.Constraint("Horizontal", 6))
sketch15.addConstraint(Sketcher.Constraint("Vertical", 7))
sketch15.addConstraint(Sketcher.Constraint("Symmetric", 4, 2, 7, 2, -2))
sketch15.addConstraint(Sketcher.Constraint("PointOnObject", 0, 2, -2))
sketch15.addConstraint(Sketcher.Constraint("DistanceX", 2, 1, 2, 2, 2.0))
sketch15.addConstraint(Sketcher.Constraint("DistanceY", 5, 2, 5, 1, 58.0))
sketch15.addConstraint(Sketcher.Constraint("DistanceX", 0, 1, 0, 2, 5.3))
sketch15.addConstraint(Sketcher.Constraint("DistanceY", 1, 1, 1, 2, 2.5))
sketch15.addConstraint(Sketcher.Constraint("DistanceY", -1, 1, 0, 2, 15.6))
pocket10 = body.newObject("PartDesign::Pocket", "Pocket009")
pocket10.Profile = sketch15
pocket10.Length = 10
pocket10.Reversed = True

sketch16 = body.newObject("Sketcher::SketchObject", "Sketch015")
sketch16.AttachmentSupport = (doc.getObject("YZ_Plane"), [""])
sketch16.MapMode = "FlatFace"
sketch16.AttachmentOffset = App.Placement(Vector(0, 0, -52.2), App.Rotation())
add_polygon(sketch16, [(-15.5, 15.6), (-10.2, 15.6), (-10.2, 18.1), (-8.2, 18.1), (-8.2, 15.6), (-4.9, 15.6), (-4.9, -42.4), (-15.5, -42.4)])
sketch16.addConstraint(Sketcher.Constraint("Horizontal", 0))
sketch16.addConstraint(Sketcher.Constraint("Vertical", 1))
sketch16.addConstraint(Sketcher.Constraint("Horizontal", 2))
sketch16.addConstraint(Sketcher.Constraint("Vertical", 3))
sketch16.addConstraint(Sketcher.Constraint("Horizontal", 4))
sketch16.addConstraint(Sketcher.Constraint("Vertical", 5))
sketch16.addConstraint(Sketcher.Constraint("Horizontal", 6))
sketch16.addConstraint(Sketcher.Constraint("Vertical", 7))
sketch16.addConstraint(Sketcher.Constraint("Horizontal", 0, 2, 3, 2))
sketch16.addConstraint(Sketcher.Constraint("DistanceX", 2, 1, 2, 2, 2.0))
sketch16.addConstraint(Sketcher.Constraint("DistanceY", 5, 2, 5, 1, 58.0))
sketch16.addConstraint(Sketcher.Constraint("DistanceX", 0, 1, 0, 2, 5.3))
sketch16.addConstraint(Sketcher.Constraint("DistanceX", 4, 1, 4, 2, 3.3))
sketch16.addConstraint(Sketcher.Constraint("DistanceY", 1, 1, 1, 2, 2.5))
sketch16.addConstraint(Sketcher.Constraint("DistanceY", -1, 1, 0, 2, 15.6))
sketch16.addConstraint(Sketcher.Constraint("DistanceX", 0, 2, -1, 1, 10.16))
pocket11 = body.newObject("PartDesign::Pocket", "Pocket010")
pocket11.Profile = sketch16
pocket11.Length = 10
pocket11.Reversed = True

sketch17 = body.newObject("Sketcher::SketchObject", "Sketch016")
sketch17.AttachmentSupport = (doc.getObject("YZ_Plane"), [""])
sketch17.MapMode = "FlatFace"
sketch17.AttachmentOffset = App.Placement(Vector(0, 0, -52.2), App.Rotation())
add_polygon(sketch17, [(-25.6, 15.6), (-20.3, 15.6), (-20.3, 18.1), (-18.3, 18.1), (-18.3, 15.6), (-15, 15.6), (-15, -42.4), (-25.6, -42.4)])
sketch17.addConstraint(Sketcher.Constraint("Horizontal", 0))
sketch17.addConstraint(Sketcher.Constraint("Vertical", 1))
sketch17.addConstraint(Sketcher.Constraint("Horizontal", 2))
sketch17.addConstraint(Sketcher.Constraint("Vertical", 3))
sketch17.addConstraint(Sketcher.Constraint("Horizontal", 4))
sketch17.addConstraint(Sketcher.Constraint("Vertical", 5))
sketch17.addConstraint(Sketcher.Constraint("Horizontal", 6))
sketch17.addConstraint(Sketcher.Constraint("Vertical", 7))
sketch17.addConstraint(Sketcher.Constraint("Horizontal", 0, 2, 3, 2))
sketch17.addConstraint(Sketcher.Constraint("DistanceX", 2, 1, 2, 2, 2.0))
sketch17.addConstraint(Sketcher.Constraint("DistanceY", 5, 2, 5, 1, 58.0))
sketch17.addConstraint(Sketcher.Constraint("DistanceX", 0, 1, 0, 2, 5.3))
sketch17.addConstraint(Sketcher.Constraint("DistanceX", 4, 1, 4, 2, 3.3))
sketch17.addConstraint(Sketcher.Constraint("DistanceY", 1, 1, 1, 2, 2.5))
sketch17.addConstraint(Sketcher.Constraint("DistanceY", -1, 1, 0, 2, 15.6))
sketch17.addConstraint(Sketcher.Constraint("DistanceX", 0, 2, -1, 1, 20.32))
pocket12 = body.newObject("PartDesign::Pocket", "Pocket011")
pocket12.Profile = sketch17
pocket12.Length = 10
pocket12.Reversed = True

doc.recompute()
